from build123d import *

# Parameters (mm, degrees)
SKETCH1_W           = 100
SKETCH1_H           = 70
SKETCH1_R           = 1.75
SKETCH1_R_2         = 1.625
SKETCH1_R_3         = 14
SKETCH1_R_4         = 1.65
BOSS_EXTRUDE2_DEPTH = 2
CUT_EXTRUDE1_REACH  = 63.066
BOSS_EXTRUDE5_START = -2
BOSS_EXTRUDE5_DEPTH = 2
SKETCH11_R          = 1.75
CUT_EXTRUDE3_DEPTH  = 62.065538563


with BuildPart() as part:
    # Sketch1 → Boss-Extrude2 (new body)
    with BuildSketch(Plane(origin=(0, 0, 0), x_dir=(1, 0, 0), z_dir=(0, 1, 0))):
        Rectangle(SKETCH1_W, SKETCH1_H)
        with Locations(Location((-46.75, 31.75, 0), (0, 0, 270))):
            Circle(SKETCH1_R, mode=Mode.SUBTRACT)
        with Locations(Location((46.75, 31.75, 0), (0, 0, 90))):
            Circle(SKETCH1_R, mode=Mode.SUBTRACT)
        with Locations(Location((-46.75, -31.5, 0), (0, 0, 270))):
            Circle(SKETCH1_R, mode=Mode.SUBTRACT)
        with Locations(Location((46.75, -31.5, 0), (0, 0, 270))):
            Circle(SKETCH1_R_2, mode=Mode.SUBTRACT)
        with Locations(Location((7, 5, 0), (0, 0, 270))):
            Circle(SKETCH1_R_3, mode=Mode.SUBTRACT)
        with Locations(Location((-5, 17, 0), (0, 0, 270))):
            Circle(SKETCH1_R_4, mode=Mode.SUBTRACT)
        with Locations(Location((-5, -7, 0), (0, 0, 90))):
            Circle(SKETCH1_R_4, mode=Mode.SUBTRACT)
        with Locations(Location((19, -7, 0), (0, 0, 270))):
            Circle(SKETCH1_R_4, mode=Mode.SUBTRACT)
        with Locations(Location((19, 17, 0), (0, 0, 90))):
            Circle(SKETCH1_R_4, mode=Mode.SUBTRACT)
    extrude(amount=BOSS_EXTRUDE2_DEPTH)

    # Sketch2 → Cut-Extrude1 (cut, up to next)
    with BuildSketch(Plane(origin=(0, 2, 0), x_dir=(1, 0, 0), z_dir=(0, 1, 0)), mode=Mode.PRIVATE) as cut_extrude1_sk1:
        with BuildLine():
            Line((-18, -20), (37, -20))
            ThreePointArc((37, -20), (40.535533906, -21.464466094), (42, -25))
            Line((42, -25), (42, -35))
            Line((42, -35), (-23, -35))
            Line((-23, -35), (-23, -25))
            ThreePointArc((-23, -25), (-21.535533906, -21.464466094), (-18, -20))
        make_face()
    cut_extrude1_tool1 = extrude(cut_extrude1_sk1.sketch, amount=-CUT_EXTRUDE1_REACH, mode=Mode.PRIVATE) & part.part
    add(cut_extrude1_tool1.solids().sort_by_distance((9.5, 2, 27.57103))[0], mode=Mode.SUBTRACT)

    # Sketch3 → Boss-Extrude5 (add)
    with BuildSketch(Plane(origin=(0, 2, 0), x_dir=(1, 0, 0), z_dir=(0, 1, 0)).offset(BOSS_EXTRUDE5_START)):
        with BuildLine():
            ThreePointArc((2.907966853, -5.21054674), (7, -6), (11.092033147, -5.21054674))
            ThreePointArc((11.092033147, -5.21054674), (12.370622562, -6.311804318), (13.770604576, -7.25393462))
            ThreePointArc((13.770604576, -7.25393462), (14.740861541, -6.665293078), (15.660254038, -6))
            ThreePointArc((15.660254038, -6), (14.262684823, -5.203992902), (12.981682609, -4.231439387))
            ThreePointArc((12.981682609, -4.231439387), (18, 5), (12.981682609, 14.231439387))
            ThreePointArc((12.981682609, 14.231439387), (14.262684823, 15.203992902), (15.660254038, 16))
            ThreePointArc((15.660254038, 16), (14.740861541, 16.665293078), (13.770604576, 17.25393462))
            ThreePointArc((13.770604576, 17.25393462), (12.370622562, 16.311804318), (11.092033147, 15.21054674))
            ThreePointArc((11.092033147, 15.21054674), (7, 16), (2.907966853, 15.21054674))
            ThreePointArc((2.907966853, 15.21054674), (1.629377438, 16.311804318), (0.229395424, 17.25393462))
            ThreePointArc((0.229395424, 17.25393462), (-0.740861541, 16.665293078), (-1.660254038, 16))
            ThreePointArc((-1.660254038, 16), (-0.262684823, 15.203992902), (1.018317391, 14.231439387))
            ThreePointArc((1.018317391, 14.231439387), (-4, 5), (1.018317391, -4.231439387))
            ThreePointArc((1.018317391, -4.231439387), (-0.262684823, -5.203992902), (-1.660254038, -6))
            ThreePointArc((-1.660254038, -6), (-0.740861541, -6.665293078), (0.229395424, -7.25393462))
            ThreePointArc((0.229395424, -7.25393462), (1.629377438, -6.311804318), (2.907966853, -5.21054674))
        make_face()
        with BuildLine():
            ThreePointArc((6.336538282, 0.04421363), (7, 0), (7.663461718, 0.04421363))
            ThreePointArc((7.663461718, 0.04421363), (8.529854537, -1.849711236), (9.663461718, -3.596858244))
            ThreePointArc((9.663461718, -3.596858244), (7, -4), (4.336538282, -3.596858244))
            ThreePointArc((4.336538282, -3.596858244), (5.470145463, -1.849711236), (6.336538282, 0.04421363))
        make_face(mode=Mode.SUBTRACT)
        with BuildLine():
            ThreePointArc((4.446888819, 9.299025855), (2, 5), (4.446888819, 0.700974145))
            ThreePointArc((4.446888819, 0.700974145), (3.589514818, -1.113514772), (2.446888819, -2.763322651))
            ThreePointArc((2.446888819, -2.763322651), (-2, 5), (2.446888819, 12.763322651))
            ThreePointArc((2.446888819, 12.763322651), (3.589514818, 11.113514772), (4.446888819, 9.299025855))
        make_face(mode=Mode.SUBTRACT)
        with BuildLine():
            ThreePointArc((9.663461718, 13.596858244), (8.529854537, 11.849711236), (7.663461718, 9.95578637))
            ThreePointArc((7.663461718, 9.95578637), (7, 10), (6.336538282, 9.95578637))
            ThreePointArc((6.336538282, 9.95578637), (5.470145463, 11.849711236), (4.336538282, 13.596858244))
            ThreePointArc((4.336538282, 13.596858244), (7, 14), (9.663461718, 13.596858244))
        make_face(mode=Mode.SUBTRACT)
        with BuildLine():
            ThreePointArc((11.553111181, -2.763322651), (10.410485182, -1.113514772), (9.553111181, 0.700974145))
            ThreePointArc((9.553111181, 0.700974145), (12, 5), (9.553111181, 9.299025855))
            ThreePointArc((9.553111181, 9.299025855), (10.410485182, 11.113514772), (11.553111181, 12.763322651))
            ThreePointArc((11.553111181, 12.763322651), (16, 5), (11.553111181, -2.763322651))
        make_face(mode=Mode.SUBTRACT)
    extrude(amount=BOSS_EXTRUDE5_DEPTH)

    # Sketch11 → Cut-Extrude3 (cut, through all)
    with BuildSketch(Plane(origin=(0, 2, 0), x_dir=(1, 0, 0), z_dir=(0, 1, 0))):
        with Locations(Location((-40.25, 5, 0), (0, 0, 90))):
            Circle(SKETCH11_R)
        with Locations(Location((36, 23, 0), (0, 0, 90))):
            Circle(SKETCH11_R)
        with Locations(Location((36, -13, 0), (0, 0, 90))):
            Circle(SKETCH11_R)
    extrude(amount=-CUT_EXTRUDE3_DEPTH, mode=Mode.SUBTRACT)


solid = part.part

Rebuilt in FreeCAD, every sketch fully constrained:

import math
import FreeCAD as App
import Part
import Sketcher
from FreeCAD import Vector
Q = App.Units.Quantity

doc = App.newDocument("Part")
body = doc.addObject("PartDesign::Body", "Body")

# Sketch on XZ plane
sketch1 = body.newObject("Sketcher::SketchObject", "Sketch")
sketch1.AttachmentSupport = (doc.getObject("XZ_Plane"), [""])
sketch1.MapMode = "FlatFace"
sketch1.addGeometry(Part.LineSegment(Vector(-50, -35, 0), Vector(-50, 35, 0)), False)
sketch1.addGeometry(Part.LineSegment(Vector(-50, 35, 0), Vector(50, 35, 0)), False)
sketch1.addGeometry(Part.LineSegment(Vector(50, 35, 0), Vector(50, -35, 0)), False)
sketch1.addGeometry(Part.LineSegment(Vector(50, -35, 0), Vector(-50, -35, 0)), False)
sketch1.addGeometry(Part.Circle(Vector(-46.75, 31.5, 0), Vector(0, 0, 1), 1.75), False)
sketch1.addGeometry(Part.Circle(Vector(-5, 7, 0), Vector(0, 0, 1), 1.65), False)
sketch1.addGeometry(Part.Circle(Vector(46.75, 31.5, 0), Vector(0, 0, 1), 1.625), False)
sketch1.addGeometry(Part.Circle(Vector(19, 7, 0), Vector(0, 0, 1), 1.65), False)
sketch1.addGeometry(Part.Circle(Vector(-46.75, -31.75, 0), Vector(0, 0, 1), 1.75), False)
sketch1.addGeometry(Part.Circle(Vector(-5, -17, 0), Vector(0, 0, 1), 1.65), False)
sketch1.addGeometry(Part.Circle(Vector(7, -5, 0), Vector(0, 0, 1), 14), False)
sketch1.addGeometry(Part.Circle(Vector(19, -17, 0), Vector(0, 0, 1), 1.65), False)
sketch1.addGeometry(Part.Circle(Vector(46.75, -31.75, 0), Vector(0, 0, 1), 1.75), False)
sketch1.addConstraint(Sketcher.Constraint("Coincident", 0, 2, 1, 1))
sketch1.addConstraint(Sketcher.Constraint("Coincident", 1, 2, 2, 1))
sketch1.addConstraint(Sketcher.Constraint("Coincident", 2, 2, 3, 1))
sketch1.addConstraint(Sketcher.Constraint("Coincident", 3, 2, 0, 1))
sketch1.addConstraint(Sketcher.Constraint("Vertical", 0))
sketch1.addConstraint(Sketcher.Constraint("Horizontal", 1))
sketch1.addConstraint(Sketcher.Constraint("Vertical", 2))
sketch1.addConstraint(Sketcher.Constraint("Horizontal", 3))
sketch1.addConstraint(Sketcher.Constraint("Equal", 5, 7))
sketch1.addConstraint(Sketcher.Constraint("Equal", 4, 8))
sketch1.addConstraint(Sketcher.Constraint("Equal", 7, 9))
sketch1.addConstraint(Sketcher.Constraint("Equal", 9, 11))
sketch1.addConstraint(Sketcher.Constraint("Equal", 8, 12))
sketch1.addConstraint(Sketcher.Constraint("Symmetric", 0, 2, 2, 2, -1, 1))
sketch1.addConstraint(Sketcher.Constraint("Symmetric", 4, 3, 6, 3, -2))
sketch1.addConstraint(Sketcher.Constraint("Symmetric", 8, 3, 12, 3, -2))
sketch1.addConstraint(Sketcher.Constraint("Horizontal", 5, 3, 7, 3))
sketch1.addConstraint(Sketcher.Constraint("Horizontal", 9, 3, 11, 3))
sketch1.addConstraint(Sketcher.Constraint("Vertical", 4, 3, 8, 3))
sketch1.addConstraint(Sketcher.Constraint("Vertical", 5, 3, 9, 3))
sketch1.addConstraint(Sketcher.Constraint("Vertical", 7, 3, 11, 3))
sketch1.addConstraint(Sketcher.Constraint("Diameter", 10, Q("28 mm")))
sketch1.addConstraint(Sketcher.Constraint("Diameter", 4, Q("3.5 mm")))
sketch1.addConstraint(Sketcher.Constraint("Diameter", 5, Q("3.3 mm")))
sketch1.addConstraint(Sketcher.Constraint("Diameter", 6, Q("3.25 mm")))
sketch1.addConstraint(Sketcher.Constraint("DistanceX", 1, 1, 1, 2, Q("100 mm")))
sketch1.addConstraint(Sketcher.Constraint("DistanceY", 0, 1, 0, 2, Q("70 mm")))
sketch1.addConstraint(Sketcher.Constraint("DistanceX", 5, 3, -1, 1, Q("5 mm")))
sketch1.addConstraint(Sketcher.Constraint("DistanceY", -1, 1, 5, 3, Q("7 mm")))
sketch1.addConstraint(Sketcher.Constraint("DistanceX", -1, 1, 7, 3, Q("19 mm")))
sketch1.addConstraint(Sketcher.Constraint("DistanceY", 9, 3, -1, 1, Q("17 mm")))
sketch1.addConstraint(Sketcher.Constraint("DistanceX", -1, 1, 10, 3, Q("7 mm")))
sketch1.addConstraint(Sketcher.Constraint("DistanceY", 10, 3, -1, 1, Q("5 mm")))
sketch1.addConstraint(Sketcher.Constraint("DistanceY", -1, 1, 4, 3, Q("31.5 mm")))
sketch1.addConstraint(Sketcher.Constraint("DistanceX", 4, 3, 6, 3, Q("93.5 mm")))
sketch1.addConstraint(Sketcher.Constraint("DistanceY", 8, 3, -1, 1, Q("31.75 mm")))
pad1 = body.newObject("PartDesign::Pad", "Pad")
pad1.Profile = sketch1
pad1.Length = 2
pad1.Reversed = True

# Sketch on XZ plane
sketch2 = body.newObject("Sketcher::SketchObject", "Sketch001")
sketch2.AttachmentSupport = (doc.getObject("XZ_Plane"), [""])
sketch2.MapMode = "FlatFace"
sketch2.AttachmentOffset = App.Placement(Vector(0, 0, -2), App.Rotation())
sketch2.addGeometry(Part.LineSegment(Vector(37, 20, 0), Vector(-18, 20, 0)), False)
sketch2.addGeometry(Part.ArcOfCircle(Part.Circle(Vector(-18, 25, 0), Vector(0, 0, 1), 5), math.radians(180), math.radians(270)), False)
sketch2.addGeometry(Part.LineSegment(Vector(-23, 25, 0), Vector(-23, 35, 0)), False)
sketch2.addGeometry(Part.LineSegment(Vector(-23, 35, 0), Vector(42, 35, 0)), False)
sketch2.addGeometry(Part.LineSegment(Vector(42, 35, 0), Vector(42, 25, 0)), False)
sketch2.addGeometry(Part.ArcOfCircle(Part.Circle(Vector(37, 25, 0), Vector(0, 0, 1), 5), math.radians(-90), math.radians(0)), False)
sketch2.addConstraint(Sketcher.Constraint("Tangent", 0, 2, 1, 2))
sketch2.addConstraint(Sketcher.Constraint("Tangent", 1, 1, 2, 1))
sketch2.addConstraint(Sketcher.Constraint("Coincident", 2, 2, 3, 1))
sketch2.addConstraint(Sketcher.Constraint("Coincident", 3, 2, 4, 1))
sketch2.addConstraint(Sketcher.Constraint("Tangent", 4, 2, 5, 2))
sketch2.addConstraint(Sketcher.Constraint("Tangent", 5, 1, 0, 1))
sketch2.addConstraint(Sketcher.Constraint("Horizontal", 0))
sketch2.addConstraint(Sketcher.Constraint("Vertical", 2))
sketch2.addConstraint(Sketcher.Constraint("Horizontal", 3))
sketch2.addConstraint(Sketcher.Constraint("Vertical", 4))
sketch2.addConstraint(Sketcher.Constraint("Equal", 1, 5))
sketch2.addConstraint(Sketcher.Constraint("Radius", 1, Q("5 mm")))
sketch2.addConstraint(Sketcher.Constraint("DistanceX", 0, 2, 0, 1, Q("55 mm")))
sketch2.addConstraint(Sketcher.Constraint("DistanceY", 2, 1, 2, 2, Q("10 mm")))
sketch2.addConstraint(Sketcher.Constraint("DistanceX", 1, 3, -1, 1, Q("18 mm")))
sketch2.addConstraint(Sketcher.Constraint("DistanceY", -1, 1, 1, 3, Q("25 mm")))
pocket1 = body.newObject("PartDesign::Pocket", "Pocket")
pocket1.Profile = sketch2
pocket1.Type = "UpToFirst"
pocket1.Reversed = True

# Sketch on XZ plane
sketch3 = body.newObject("Sketcher::SketchObject", "Sketch002")
sketch3.AttachmentSupport = (doc.getObject("XZ_Plane"), [""])
sketch3.MapMode = "FlatFace"
sketch3.addGeometry(Part.ArcOfCircle(Part.Circle(Vector(7, -5, 0), Vector(0, 0, 1), 11), math.radians(68.160799), math.radians(111.839201)), False)
sketch3.addGeometry(Part.ArcOfCircle(Part.Circle(Vector(21, -5, 0), Vector(0, 0, 1), 14.227546), math.radians(120.539127), math.radians(134.138344)), False)
sketch3.addGeometry(Part.ArcOfCircle(Part.Circle(Vector(7, -5, 0), Vector(0, 0, 1), 14), math.radians(51.786789), math.radians(61.078255)), False)
sketch3.addGeometry(Part.ArcOfCircle(Part.Circle(Vector(21, -5, 0), Vector(0, 0, 1), 12.227546), math.radians(115.893395), math.radians(130.977189)), False)
sketch3.addGeometry(Part.ArcOfCircle(Part.Circle(Vector(7, -5, 0), Vector(0, 0, 1), 11), math.radians(-57.058031), math.radians(57.058031)), False)
sketch3.addGeometry(Part.ArcOfCircle(Part.Circle(Vector(21, -5, 0), Vector(0, 0, 1), 12.227546), math.radians(-130.977189), math.radians(-115.893395)), False)
sketch3.addGeometry(Part.ArcOfCircle(Part.Circle(Vector(7, -5, 0), Vector(0, 0, 1), 14), math.radians(-61.078255), math.radians(-51.786789)), False)
sketch3.addGeometry(Part.ArcOfCircle(Part.Circle(Vector(21, -5, 0), Vector(0, 0, 1), 14.227546), math.radians(-134.138344), math.radians(-120.539127)), False)
sketch3.addGeometry(Part.ArcOfCircle(Part.Circle(Vector(7, -5, 0), Vector(0, 0, 1), 11), math.radians(-111.839201), math.radians(-68.160799)), False)
sketch3.addGeometry(Part.ArcOfCircle(Part.Circle(Vector(-7, -5, 0), Vector(0, 0, 1), 14.227546), math.radians(-59.460873), math.radians(-45.861656)), False)
sketch3.addGeometry(Part.ArcOfCircle(Part.Circle(Vector(7, -5, 0), Vector(0, 0, 1), 14), math.radians(-128.213211), math.radians(-118.921745)), False)
sketch3.addGeometry(Part.ArcOfCircle(Part.Circle(Vector(-7, -5, 0), Vector(0, 0, 1), 12.227546), math.radians(-64.106605), math.radians(-49.022811)), False)
sketch3.addGeometry(Part.ArcOfCircle(Part.Circle(Vector(7, -5, 0), Vector(0, 0, 1), 11), math.radians(122.941969), math.radians(237.058031)), False)
sketch3.addGeometry(Part.ArcOfCircle(Part.Circle(Vector(-7, -5, 0), Vector(0, 0, 1), 12.227546), math.radians(49.022811), math.radians(64.106605)), False)
sketch3.addGeometry(Part.ArcOfCircle(Part.Circle(Vector(7, -5, 0), Vector(0, 0, 1), 14), math.radians(118.921745), math.radians(128.213211)), False)
sketch3.addGeometry(Part.ArcOfCircle(Part.Circle(Vector(-7, -5, 0), Vector(0, 0, 1), 14.227546), math.radians(45.861656), math.radians(59.460873)), False)
sketch3.addGeometry(Part.ArcOfCircle(Part.Circle(Vector(-7, -5, 0), Vector(0, 0, 1), 12.227546), math.radians(-39.412893), math.radians(-20.584312)), False)
sketch3.addGeometry(Part.ArcOfCircle(Part.Circle(Vector(7, -5, 0), Vector(0, 0, 1), 5), math.radians(120.705285), math.radians(239.294715)), False)
sketch3.addGeometry(Part.ArcOfCircle(Part.Circle(Vector(-7, -5, 0), Vector(0, 0, 1), 12.227546), math.radians(20.584312), math.radians(39.412893)), False)
sketch3.addGeometry(Part.ArcOfCircle(Part.Circle(Vector(7, -5, 0), Vector(0, 0, 1), 9), math.radians(120.391197), math.radians(239.608803)), False)
sketch3.addGeometry(Part.ArcOfCircle(Part.Circle(Vector(-7, -5, 0), Vector(0, 0, 1), 14.227546), math.radians(20.384797), math.radians(37.174201)), False)
sketch3.addGeometry(Part.ArcOfCircle(Part.Circle(Vector(7, -5, 0), Vector(0, 0, 1), 5), math.radians(82.3748), math.radians(97.6252)), False)
sketch3.addGeometry(Part.ArcOfCircle(Part.Circle(Vector(21, -5, 0), Vector(0, 0, 1), 14.227546), math.radians(142.825799), math.radians(159.615203)), False)
sketch3.addGeometry(Part.ArcOfCircle(Part.Circle(Vector(7, -5, 0), Vector(0, 0, 1), 9), math.radians(72.786076), math.radians(107.213924)), False)
sketch3.addGeometry(Part.ArcOfCircle(Part.Circle(Vector(7, -5, 0), Vector(0, 0, 1), 9), math.radians(-59.608803), math.radians(59.608803)), False)
sketch3.addGeometry(Part.ArcOfCircle(Part.Circle(Vector(21, -5, 0), Vector(0, 0, 1), 12.227546), math.radians(140.587107), math.radians(159.415688)), False)
sketch3.addGeometry(Part.ArcOfCircle(Part.Circle(Vector(7, -5, 0), Vector(0, 0, 1), 5), math.radians(-59.294715), math.radians(59.294715)), False)
sketch3.addGeometry(Part.ArcOfCircle(Part.Circle(Vector(21, -5, 0), Vector(0, 0, 1), 12.227546), math.radians(-159.415688), math.radians(-140.587107)), False)
sketch3.addGeometry(Part.ArcOfCircle(Part.Circle(Vector(7, -5, 0), Vector(0, 0, 1), 9), math.radians(-107.213924), math.radians(-72.786076)), False)
sketch3.addGeometry(Part.ArcOfCircle(Part.Circle(Vector(21, -5, 0), Vector(0, 0, 1), 14.227546), math.radians(-159.615203), math.radians(-142.825799)), False)
sketch3.addGeometry(Part.ArcOfCircle(Part.Circle(Vector(7, -5, 0), Vector(0, 0, 1), 5), math.radians(-97.6252), math.radians(-82.3748)), False)
sketch3.addGeometry(Part.ArcOfCircle(Part.Circle(Vector(-7, -5, 0), Vector(0, 0, 1), 14.227546), math.radians(-37.174201), math.radians(-20.384797)), False)
sketch3.addConstraint(Sketcher.Constraint("Coincident", 0, 1, 1, 2))
sketch3.addConstraint(Sketcher.Constraint("Coincident", 1, 1, 2, 2))
sketch3.addConstraint(Sketcher.Constraint("Coincident", 2, 1, 3, 1))
sketch3.addConstraint(Sketcher.Constraint("Coincident", 3, 2, 4, 2))
sketch3.addConstraint(Sketcher.Constraint("Coincident", 4, 1, 5, 1))
sketch3.addConstraint(Sketcher.Constraint("Coincident", 5, 2, 6, 2))
sketch3.addConstraint(Sketcher.Constraint("Coincident", 6, 1, 7, 2))
sketch3.addConstraint(Sketcher.Constraint("Coincident", 7, 1, 8, 2))
sketch3.addConstraint(Sketcher.Constraint("Coincident", 8, 1, 9, 2))
sketch3.addConstraint(Sketcher.Constraint("Coincident", 9, 1, 10, 2))
sketch3.addConstraint(Sketcher.Constraint("Coincident", 10, 1, 11, 1))
sketch3.addConstraint(Sketcher.Constraint("Coincident", 11, 2, 12, 2))
sketch3.addConstraint(Sketcher.Constraint("Coincident", 12, 1, 13, 1))
sketch3.addConstraint(Sketcher.Constraint("Coincident", 13, 2, 14, 2))
sketch3.addConstraint(Sketcher.Constraint("Coincident", 14, 1, 15, 2))
sketch3.addConstraint(Sketcher.Constraint("Coincident", 15, 1, 0, 2))
sketch3.addConstraint(Sketcher.Constraint("Coincident", 16, 2, 17, 2))
sketch3.addConstraint(Sketcher.Constraint("Coincident", 17, 1, 18, 1))
sketch3.addConstraint(Sketcher.Constraint("Coincident", 18, 2, 19, 1))
sketch3.addConstraint(Sketcher.Constraint("Coincident", 19, 2, 16, 1))
sketch3.addConstraint(Sketcher.Constraint("Coincident", 20, 1, 21, 2))
sketch3.addConstraint(Sketcher.Constraint("Coincident", 21, 1, 22, 2))
sketch3.addConstraint(Sketcher.Constraint("Coincident", 22, 1, 23, 1))
sketch3.addConstraint(Sketcher.Constraint("Coincident", 23, 2, 20, 2))
sketch3.addConstraint(Sketcher.Constraint("Coincident", 24, 2, 25, 1))
sketch3.addConstraint(Sketcher.Constraint("Coincident", 25, 2, 26, 2))
sketch3.addConstraint(Sketcher.Constraint("Coincident", 26, 1, 27, 1))
sketch3.addConstraint(Sketcher.Constraint("Coincident", 27, 2, 24, 1))
sketch3.addConstraint(Sketcher.Constraint("Coincident", 28, 2, 29, 2))
sketch3.addConstraint(Sketcher.Constraint("Coincident", 29, 1, 30, 2))
sketch3.addConstraint(Sketcher.Constraint("Coincident", 30, 1, 31, 2))
sketch3.addConstraint(Sketcher.Constraint("Coincident", 31, 1, 28, 1))
sketch3.addConstraint(Sketcher.Constraint("Coincident", 2, 3, 0, 3))
sketch3.addConstraint(Sketcher.Constraint("Coincident", 3, 3, 1, 3))
sketch3.addConstraint(Sketcher.Constraint("Coincident", 4, 3, 0, 3))
sketch3.addConstraint(Sketcher.Constraint("Coincident", 5, 3, 1, 3))
sketch3.addConstraint(Sketcher.Constraint("Coincident", 6, 3, 0, 3))
sketch3.addConstraint(Sketcher.Constraint("Coincident", 7, 3, 1, 3))
sketch3.addConstraint(Sketcher.Constraint("Coincident", 8, 3, 0, 3))
sketch3.addConstraint(Sketcher.Constraint("Coincident", 10, 3, 0, 3))
sketch3.addConstraint(Sketcher.Constraint("Coincident", 11, 3, 9, 3))
sketch3.addConstraint(Sketcher.Constraint("Coincident", 12, 3, 0, 3))
sketch3.addConstraint(Sketcher.Constraint("Coincident", 13, 3, 9, 3))
sketch3.addConstraint(Sketcher.Constraint("Coincident", 14, 3, 0, 3))
sketch3.addConstraint(Sketcher.Constraint("Coincident", 15, 3, 9, 3))
sketch3.addConstraint(Sketcher.Constraint("Coincident", 16, 3, 9, 3))
sketch3.addConstraint(Sketcher.Constraint("Coincident", 17, 3, 0, 3))
sketch3.addConstraint(Sketcher.Constraint("Coincident", 18, 3, 9, 3))
sketch3.addConstraint(Sketcher.Constraint("Coincident", 19, 3, 0, 3))
sketch3.addConstraint(Sketcher.Constraint("Coincident", 20, 3, 9, 3))
sketch3.addConstraint(Sketcher.Constraint("Coincident", 21, 3, 0, 3))
sketch3.addConstraint(Sketcher.Constraint("Coincident", 22, 3, 1, 3))
sketch3.addConstraint(Sketcher.Constraint("Coincident", 23, 3, 0, 3))
sketch3.addConstraint(Sketcher.Constraint("Coincident", 24, 3, 0, 3))
sketch3.addConstraint(Sketcher.Constraint("Coincident", 25, 3, 1, 3))
sketch3.addConstraint(Sketcher.Constraint("Coincident", 26, 3, 0, 3))
sketch3.addConstraint(Sketcher.Constraint("Coincident", 27, 3, 1, 3))
sketch3.addConstraint(Sketcher.Constraint("Coincident", 28, 3, 0, 3))
sketch3.addConstraint(Sketcher.Constraint("Coincident", 29, 3, 1, 3))
sketch3.addConstraint(Sketcher.Constraint("Coincident", 30, 3, 0, 3))
sketch3.addConstraint(Sketcher.Constraint("Coincident", 31, 3, 9, 3))
sketch3.addConstraint(Sketcher.Constraint("Equal", 0, 4))
sketch3.addConstraint(Sketcher.Constraint("Equal", 3, 5))
sketch3.addConstraint(Sketcher.Constraint("Equal", 2, 6))
sketch3.addConstraint(Sketcher.Constraint("Equal", 1, 7))
sketch3.addConstraint(Sketcher.Constraint("Equal", 4, 8))
sketch3.addConstraint(Sketcher.Constraint("Equal", 7, 9))
sketch3.addConstraint(Sketcher.Constraint("Equal", 6, 10))
sketch3.addConstraint(Sketcher.Constraint("Equal", 5, 11))
sketch3.addConstraint(Sketcher.Constraint("Equal", 8, 12))
sketch3.addConstraint(Sketcher.Constraint("Equal", 11, 13))
sketch3.addConstraint(Sketcher.Constraint("Equal", 10, 14))
sketch3.addConstraint(Sketcher.Constraint("Equal", 9, 15))
sketch3.addConstraint(Sketcher.Constraint("Equal", 13, 16))
sketch3.addConstraint(Sketcher.Constraint("Equal", 16, 18))
sketch3.addConstraint(Sketcher.Constraint("Equal", 15, 20))
sketch3.addConstraint(Sketcher.Constraint("Equal", 17, 21))
sketch3.addConstraint(Sketcher.Constraint("Equal", 20, 22))
sketch3.addConstraint(Sketcher.Constraint("Equal", 19, 23))
sketch3.addConstraint(Sketcher.Constraint("Equal", 23, 24))
sketch3.addConstraint(Sketcher.Constraint("Equal", 18, 25))
sketch3.addConstraint(Sketcher.Constraint("Equal", 21, 26))
sketch3.addConstraint(Sketcher.Constraint("Equal", 25, 27))
sketch3.addConstraint(Sketcher.Constraint("Equal", 24, 28))
sketch3.addConstraint(Sketcher.Constraint("Equal", 22, 29))
sketch3.addConstraint(Sketcher.Constraint("Equal", 26, 30))
sketch3.addConstraint(Sketcher.Constraint("Equal", 29, 31))
sketch3.addConstraint(Sketcher.Constraint("Symmetric", 0, 3, 9, 3, -2))
sketch3.addConstraint(Sketcher.Constraint("Horizontal", 0, 3, 1, 3))
sketch3.addConstraint(Sketcher.Constraint("Horizontal", 7, 1, 8, 1))
sketch3.addConstraint(Sketcher.Constraint("Radius", 0, Q("11 mm")))
sketch3.addConstraint(Sketcher.Constraint("Radius", 2, Q("14 mm")))
sketch3.addConstraint(Sketcher.Constraint("Radius", 17, Q("5 mm")))
sketch3.addConstraint(Sketcher.Constraint("Radius", 19, Q("9 mm")))
sketch3.addConstraint(Sketcher.Constraint("DistanceX", -1, 1, 0, 3, Q("7 mm")))
sketch3.addConstraint(Sketcher.Constraint("DistanceY", 0, 3, -1, 1, Q("5 mm")))
sketch3.addConstraint(Sketcher.Constraint("DistanceY", -1, 1, 2, 1, Q("6 mm")))
sketch3.addConstraint(Sketcher.Constraint("Radius", 1, Q("14.227546 mm")))
pad2 = body.newObject("PartDesign::Pad", "Pad001")
pad2.Profile = sketch3
pad2.Length = 2
pad2.Reversed = True

# Sketch on XZ plane
sketch4 = body.newObject("Sketcher::SketchObject", "Sketch003")
sketch4.AttachmentSupport = (doc.getObject("XZ_Plane"), [""])
sketch4.MapMode = "FlatFace"
sketch4.AttachmentOffset = App.Placement(Vector(0, 0, -2), App.Rotation())
sketch4.addGeometry(Part.Circle(Vector(-40.25, -5, 0), Vector(0, 0, 1), 1.75), False)
sketch4.addGeometry(Part.Circle(Vector(36, -23, 0), Vector(0, 0, 1), 1.75), False)
sketch4.addGeometry(Part.Circle(Vector(36, 13, 0), Vector(0, 0, 1), 1.75), False)
sketch4.addConstraint(Sketcher.Constraint("Equal", 0, 1))
sketch4.addConstraint(Sketcher.Constraint("Equal", 1, 2))
sketch4.addConstraint(Sketcher.Constraint("Vertical", 1, 3, 2, 3))
sketch4.addConstraint(Sketcher.Constraint("Diameter", 0, Q("3.5 mm")))
sketch4.addConstraint(Sketcher.Constraint("DistanceY", 0, 3, -1, 1, Q("5 mm")))
sketch4.addConstraint(Sketcher.Constraint("DistanceX", -1, 1, 1, 3, Q("36 mm")))
sketch4.addConstraint(Sketcher.Constraint("DistanceY", 1, 3, -1, 1, Q("23 mm")))
sketch4.addConstraint(Sketcher.Constraint("DistanceY", -1, 1, 2, 3, Q("13 mm")))
sketch4.addConstraint(Sketcher.Constraint("DistanceX", 0, 3, -1, 1, Q("40.25 mm")))
pocket2 = body.newObject("PartDesign::Pocket", "Pocket001")
pocket2.Profile = sketch4
pocket2.Type = "ThroughAll"
pocket2.Reversed = True

doc.recompute()
